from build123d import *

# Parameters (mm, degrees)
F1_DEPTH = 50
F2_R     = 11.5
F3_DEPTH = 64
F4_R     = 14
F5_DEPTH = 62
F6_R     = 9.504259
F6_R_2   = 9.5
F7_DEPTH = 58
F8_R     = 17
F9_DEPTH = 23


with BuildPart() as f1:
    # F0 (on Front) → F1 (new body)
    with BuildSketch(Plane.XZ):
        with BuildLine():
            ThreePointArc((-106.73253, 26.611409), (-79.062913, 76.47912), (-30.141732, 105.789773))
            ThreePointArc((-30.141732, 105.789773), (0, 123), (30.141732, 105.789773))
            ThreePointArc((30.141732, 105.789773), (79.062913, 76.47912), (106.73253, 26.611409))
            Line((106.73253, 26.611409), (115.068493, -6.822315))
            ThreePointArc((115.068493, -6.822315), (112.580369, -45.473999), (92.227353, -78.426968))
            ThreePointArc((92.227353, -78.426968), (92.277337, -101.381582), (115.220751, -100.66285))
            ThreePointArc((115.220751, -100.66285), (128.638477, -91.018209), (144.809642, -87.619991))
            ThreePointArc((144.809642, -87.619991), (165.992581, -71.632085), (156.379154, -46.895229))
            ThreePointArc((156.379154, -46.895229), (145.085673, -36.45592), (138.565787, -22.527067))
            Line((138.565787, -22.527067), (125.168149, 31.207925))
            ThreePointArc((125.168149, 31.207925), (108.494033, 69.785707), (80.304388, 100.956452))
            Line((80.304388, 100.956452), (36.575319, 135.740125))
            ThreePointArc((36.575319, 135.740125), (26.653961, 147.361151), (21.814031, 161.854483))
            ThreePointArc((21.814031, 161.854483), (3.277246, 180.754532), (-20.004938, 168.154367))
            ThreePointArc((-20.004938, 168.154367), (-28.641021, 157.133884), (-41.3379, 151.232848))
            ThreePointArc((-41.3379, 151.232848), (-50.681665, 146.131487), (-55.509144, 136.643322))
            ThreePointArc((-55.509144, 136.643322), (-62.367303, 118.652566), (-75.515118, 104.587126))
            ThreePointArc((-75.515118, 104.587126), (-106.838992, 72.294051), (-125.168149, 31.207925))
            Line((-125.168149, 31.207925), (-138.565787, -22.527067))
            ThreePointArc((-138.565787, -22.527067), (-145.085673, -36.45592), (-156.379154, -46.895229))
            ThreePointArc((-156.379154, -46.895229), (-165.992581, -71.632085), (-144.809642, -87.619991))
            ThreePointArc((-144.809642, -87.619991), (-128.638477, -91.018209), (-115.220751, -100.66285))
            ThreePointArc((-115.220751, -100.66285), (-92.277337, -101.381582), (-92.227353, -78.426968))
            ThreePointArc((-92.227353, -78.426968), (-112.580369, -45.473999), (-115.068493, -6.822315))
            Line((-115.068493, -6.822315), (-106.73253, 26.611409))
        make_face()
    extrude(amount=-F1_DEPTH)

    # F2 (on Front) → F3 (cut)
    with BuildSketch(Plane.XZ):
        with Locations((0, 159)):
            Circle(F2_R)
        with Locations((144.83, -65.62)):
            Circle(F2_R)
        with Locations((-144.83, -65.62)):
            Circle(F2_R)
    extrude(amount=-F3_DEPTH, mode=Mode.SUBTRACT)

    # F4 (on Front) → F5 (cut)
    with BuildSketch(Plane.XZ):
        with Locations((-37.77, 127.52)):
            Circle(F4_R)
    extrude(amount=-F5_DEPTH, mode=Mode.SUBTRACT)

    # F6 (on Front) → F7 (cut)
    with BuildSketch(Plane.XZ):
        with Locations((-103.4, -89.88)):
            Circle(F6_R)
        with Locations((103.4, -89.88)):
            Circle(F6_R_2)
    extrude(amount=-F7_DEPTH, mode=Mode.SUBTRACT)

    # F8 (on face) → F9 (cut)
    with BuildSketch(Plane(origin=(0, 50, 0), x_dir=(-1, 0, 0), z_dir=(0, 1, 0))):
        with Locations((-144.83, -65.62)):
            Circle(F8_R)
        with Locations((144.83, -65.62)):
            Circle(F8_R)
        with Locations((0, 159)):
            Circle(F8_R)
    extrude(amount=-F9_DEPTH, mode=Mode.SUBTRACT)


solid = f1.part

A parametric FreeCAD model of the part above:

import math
import FreeCAD as App
import Part
import Sketcher

V = App.Vector
Q = App.Units.Quantity

doc = App.newDocument("Part")
params = doc.addObject("Spreadsheet::Sheet", "Params")
for row, (alias, value) in enumerate([
    ("sketch1_radius", "110.000002 mm"),
    ("sketch1_radius2", "35.000001 mm"),
    ("sketch1_radius3", "16 mm"),
    ("sketch1_radius4", "22 mm"),
    ("sketch1_radius5", "30.000001 mm"),
    ("pad1_length", "50 mm"),
    ("sketch2_diameter", "23 mm"),
    ("pocket1_length", "64 mm"),
    ("sketch3_diameter", "28 mm"),
    ("pocket2_length", "62 mm"),
    ("sketch4_diameter", "19 mm"),
    ("pocket3_length", "58 mm"),
    ("sketch5_diameter", "34 mm"),
    ("pocket4_length", "23 mm"),
], start=1):
    params.set(f"A{row}", alias)
    params.set(f"B{row}", "=" + value)
    params.setAlias(f"B{row}", alias)

body = doc.addObject("PartDesign::Body", "Body")

sketch1 = body.newObject("Sketcher::SketchObject", "Sketch")
sketch1.AttachmentSupport = (doc.getObject("XZ_Plane"), [""])
sketch1.MapMode = "FlatFace"
sketch1.addGeometry(Part.ArcOfCircle(Part.Circle(V(0, 0, 0), V(0, 0, 1), 110), math.radians(106), math.radians(166)), False)
sketch1.addGeometry(Part.ArcOfCircle(Part.Circle(V(0, 88, 0), V(0, 0, 1), 35), math.radians(31), math.radians(149)), False)
sketch1.addGeometry(Part.ArcOfCircle(Part.Circle(V(0, 0, 0), V(0, 0, 1), 110), math.radians(14), math.radians(74)), False)
sketch1.addGeometry(Part.LineSegment(V(107, 27, 0), V(115, -7, 0)), False)
sketch1.addGeometry(Part.ArcOfCircle(Part.Circle(V(36, -21, 0), V(0, 0, 1), 80), math.radians(-46), math.radians(10)), False)
sketch1.addGeometry(Part.ArcOfCircle(Part.Circle(V(103, -90, 0), V(0, 0, 1), 16), math.radians(134), math.radians(318)), False)
sketch1.addGeometry(Part.ArcOfCircle(Part.Circle(V(145, -128, 0), V(0, 0, 1), 40), math.radians(90), math.radians(138)), False)
sketch1.addGeometry(Part.ArcOfCircle(Part.Circle(V(145, -66, 0), V(0, 0, 1), 22), math.radians(-90), math.radians(58)), False)
sketch1.addGeometry(Part.ArcOfCircle(Part.Circle(V(177, -13, 0), V(0, 0, 1), 40), math.radians(-166), math.radians(-122)), False)
sketch1.addGeometry(Part.LineSegment(V(139, -23, 0), V(125, 31, 0)), False)
sketch1.addGeometry(Part.ArcOfCircle(Part.Circle(V(0, 0, 0), V(0, 0, 1), 129), math.radians(14), math.radians(52)), False)
sketch1.addGeometry(Part.LineSegment(V(80, 101, 0), V(37, 136, 0)), False)
sketch1.addGeometry(Part.ArcOfCircle(Part.Circle(V(61, 167, 0), V(0, 0, 1), 40), math.radians(-173), math.radians(-128)), False)
sketch1.addGeometry(Part.ArcOfCircle(Part.Circle(V(0, 159, 0), V(0, 0, 1), 22), math.radians(7), math.radians(155)), False)
sketch1.addGeometry(Part.ArcOfCircle(Part.Circle(V(-47, 181, 0), V(0, 0, 1), 30), math.radians(-79), math.radians(-25)), False)
sketch1.addGeometry(Part.ArcOfCircle(Part.Circle(V(-38, 134, 0), V(0, 0, 1), 18), math.radians(101), math.radians(170)), False)
sketch1.addGeometry(Part.ArcOfCircle(Part.Circle(V(-105, 145, 0), V(0, 0, 1), 50), math.radians(-54), math.radians(-10)), False)
sketch1.addGeometry(Part.ArcOfCircle(Part.Circle(V(0, 0, 0), V(0, 0, 1), 129), math.radians(126), math.radians(166)), False)
sketch1.addGeometry(Part.LineSegment(V(-125, 31, 0), V(-139, -23, 0)), False)
sketch1.addGeometry(Part.ArcOfCircle(Part.Circle(V(-177, -13, 0), V(0, 0, 1), 40), math.radians(-58), math.radians(-14)), False)
sketch1.addGeometry(Part.ArcOfCircle(Part.Circle(V(-145, -66, 0), V(0, 0, 1), 22), math.radians(122), math.radians(270)), False)
sketch1.addGeometry(Part.ArcOfCircle(Part.Circle(V(-145, -128, 0), V(0, 0, 1), 40), math.radians(42), math.radians(90)), False)
sketch1.addGeometry(Part.ArcOfCircle(Part.Circle(V(-103, -90, 0), V(0, 0, 1), 16), math.radians(-138), math.radians(46)), False)
sketch1.addGeometry(Part.ArcOfCircle(Part.Circle(V(-36, -21, 0), V(0, 0, 1), 80), math.radians(170), math.radians(226)), False)
sketch1.addGeometry(Part.LineSegment(V(-115, -7, 0), V(-107, 27, 0)), False)
sketch1.addConstraint(Sketcher.Constraint("Coincident", 0, 1, 1, 2))
sketch1.addConstraint(Sketcher.Constraint("Coincident", 1, 1, 2, 2))
sketch1.addConstraint(Sketcher.Constraint("Tangent", 2, 1, 3, 1))
sketch1.addConstraint(Sketcher.Constraint("Coincident", 3, 2, 4, 2))
sketch1.addConstraint(Sketcher.Constraint("Tangent", 4, 1, 5, 1))
sketch1.addConstraint(Sketcher.Constraint("Tangent", 5, 2, 6, 2))
sketch1.addConstraint(Sketcher.Constraint("Tangent", 6, 1, 7, 1))
sketch1.addConstraint(Sketcher.Constraint("Tangent", 7, 2, 8, 2))
sketch1.addConstraint(Sketcher.Constraint("Tangent", 8, 1, 9, 1))
sketch1.addConstraint(Sketcher.Constraint("Tangent", 9, 2, 10, 1))
sketch1.addConstraint(Sketcher.Constraint("Tangent", 10, 2, 11, 1))
sketch1.addConstraint(Sketcher.Constraint("Tangent", 11, 2, 12, 2))
sketch1.addConstraint(Sketcher.Constraint("Tangent", 12, 1, 13, 1))
sketch1.addConstraint(Sketcher.Constraint("Tangent", 13, 2, 14, 2))
sketch1.addConstraint(Sketcher.Constraint("Tangent", 14, 1, 15, 1))
sketch1.addConstraint(Sketcher.Constraint("Tangent", 15, 2, 16, 2))
sketch1.addConstraint(Sketcher.Constraint("Tangent", 16, 1, 17, 1))
sketch1.addConstraint(Sketcher.Constraint("Tangent", 17, 2, 18, 1))
sketch1.addConstraint(Sketcher.Constraint("Tangent", 18, 2, 19, 2))
sketch1.addConstraint(Sketcher.Constraint("Tangent", 19, 1, 20, 1))
sketch1.addConstraint(Sketcher.Constraint("Tangent", 20, 2, 21, 2))
sketch1.addConstraint(Sketcher.Constraint("Tangent", 21, 1, 22, 1))
sketch1.addConstraint(Sketcher.Constraint("Tangent", 22, 2, 23, 2))
sketch1.addConstraint(Sketcher.Constraint("Coincident", 23, 1, 24, 1))
sketch1.addConstraint(Sketcher.Constraint("Tangent", 24, 2, 0, 2))
sketch1.addConstraint(Sketcher.Constraint("Coincident", 0, 3, -1, 1))
sketch1.addConstraint(Sketcher.Constraint("Coincident", 2, 3, -1, 1))
sketch1.addConstraint(Sketcher.Constraint("Coincident", 10, 3, -1, 1))
sketch1.addConstraint(Sketcher.Constraint("Coincident", 17, 3, -1, 1))
sketch1.addConstraint(Sketcher.Constraint("Equal", 0, 2))
sketch1.addConstraint(Sketcher.Constraint("Equal", 7, 13))
sketch1.addConstraint(Sketcher.Constraint("Equal", 8, 19))
sketch1.addConstraint(Sketcher.Constraint("Equal", 13, 20))
sketch1.addConstraint(Sketcher.Constraint("Equal", 6, 21))
sketch1.addConstraint(Sketcher.Constraint("Equal", 5, 22))
sketch1.addConstraint(Sketcher.Constraint("Equal", 4, 23))
sketch1.addConstraint(Sketcher.Constraint("Symmetric", 8, 3, 19, 3, -2))
sketch1.addConstraint(Sketcher.Constraint("Symmetric", 6, 3, 21, 3, -2))
sketch1.addConstraint(Sketcher.Constraint("Symmetric", 4, 3, 23, 3, -2))
sketch1.addConstraint(Sketcher.Constraint("PointOnObject", 1, 3, -2))
sketch1.addConstraint(Sketcher.Constraint("PointOnObject", 13, 3, -2))
sketch1.addConstraint(Sketcher.Constraint("Parallel", 3, 9))
sketch1.addConstraint(Sketcher.Constraint("Parallel", 18, 24))
sketch1.addConstraint(Sketcher.Constraint("Horizontal", 9, 2, 17, 2))
sketch1.addConstraint(Sketcher.Constraint("Radius", 0, Q("110.000002 mm")))
sketch1.addConstraint(Sketcher.Constraint("Radius", 1, Q("35.000001 mm")))
sketch1.addConstraint(Sketcher.Constraint("Radius", 5, Q("16 mm")))
sketch1.addConstraint(Sketcher.Constraint("Radius", 7, Q("22 mm")))
sketch1.addConstraint(Sketcher.Constraint("Radius", 14, Q("30.000001 mm")))
sketch1.addConstraint(Sketcher.Constraint("Radius", 15, Q("18.000001 mm")))
sketch1.addConstraint(Sketcher.Constraint("Radius", 17, Q("129.000001 mm")))
sketch1.addConstraint(Sketcher.Constraint("Angle", 3, Q("-76.000001 deg")))
sketch1.addConstraint(Sketcher.Constraint("DistanceY", -1, 1, 1, 3, Q("87.999999 mm")))
sketch1.addConstraint(Sketcher.Constraint("DistanceY", -1, 1, 13, 3, Q("159 mm")))
sketch1.addConstraint(Sketcher.Constraint("Angle", 11, Q("141.499999 deg")))
sketch1.addConstraint(Sketcher.Constraint("DistanceX", -1, 1, 5, 3, Q("103.4 mm")))
sketch1.addConstraint(Sketcher.Constraint("DistanceY", 5, 3, -1, 1, Q("89.880001 mm")))
sketch1.addConstraint(Sketcher.Constraint("DistanceX", -1, 1, 7, 3, Q("144.83 mm")))
sketch1.addConstraint(Sketcher.Constraint("DistanceY", 7, 3, -1, 1, Q("65.62 mm")))
sketch1.addConstraint(Sketcher.Constraint("DistanceX", 15, 3, -1, 1, Q("37.769999 mm")))
sketch1.addConstraint(Sketcher.Constraint("DistanceY", -1, 1, 15, 3, Q("133.589999 mm")))
sketch1.addConstraint(Sketcher.Constraint("Radius", 12, Q("39.999989 mm")))
sketch1.addConstraint(Sketcher.Constraint("Radius", 4, Q("80.000002 mm")))
sketch1.addConstraint(Sketcher.Constraint("Radius", 6, Q("39.999994 mm")))
sketch1.addConstraint(Sketcher.Constraint("Radius", 8, Q("39.999998 mm")))
sketch1.addConstraint(Sketcher.Constraint("Radius", 16, Q("50.000002 mm")))
sketch1.addConstraint(Sketcher.Constraint("DistanceX", 4, 3, 8, 3, Q("141.0135 mm")))
sketch1.setExpression("Constraints[44]", "Params.sketch1_radius")
sketch1.setExpression("Constraints[45]", "Params.sketch1_radius2")
sketch1.setExpression("Constraints[46]", "Params.sketch1_radius3")
sketch1.setExpression("Constraints[47]", "Params.sketch1_radius4")
sketch1.setExpression("Constraints[48]", "Params.sketch1_radius5")
pad1 = body.newObject("PartDesign::Pad", "Pad")
pad1.Profile = sketch1
pad1.setExpression("Length", "Params.pad1_length")
pad1.Reversed = True

sketch2 = body.newObject("Sketcher::SketchObject", "Sketch001")
sketch2.AttachmentSupport = (doc.getObject("XZ_Plane"), [""])
sketch2.MapMode = "FlatFace"
sketch2.addGeometry(Part.Circle(V(0, 159, 0), V(0, 0, 1), 12), False)
sketch2.addGeometry(Part.Circle(V(145, -66, 0), V(0, 0, 1), 12), False)
sketch2.addGeometry(Part.Circle(V(-145, -66, 0), V(0, 0, 1), 12), False)
sketch2.addConstraint(Sketcher.Constraint("Equal", 0, 1))
sketch2.addConstraint(Sketcher.Constraint("Equal", 1, 2))
sketch2.addConstraint(Sketcher.Constraint("Symmetric", 1, 3, 2, 3, -2))
sketch2.addConstraint(Sketcher.Constraint("PointOnObject", 0, 3, -2))
sketch2.addConstraint(Sketcher.Constraint("Diameter", 0, Q("23 mm")))
sketch2.addConstraint(Sketcher.Constraint("DistanceY", -1, 1, 0, 3, Q("159 mm")))
sketch2.addConstraint(Sketcher.Constraint("DistanceX", -1, 1, 1, 3, Q("144.83 mm")))
sketch2.addConstraint(Sketcher.Constraint("DistanceY", 1, 3, -1, 1, Q("65.62 mm")))
sketch2.setExpression("Constraints[4]", "Params.sketch2_diameter")
pocket1 = body.newObject("PartDesign::Pocket", "Pocket")
pocket1.Profile = sketch2
pocket1.setExpression("Length", "Params.pocket1_length")

sketch3 = body.newObject("Sketcher::SketchObject", "Sketch002")
sketch3.AttachmentSupport = (doc.getObject("XZ_Plane"), [""])
sketch3.MapMode = "FlatFace"
sketch3.addGeometry(Part.Circle(V(-38, 128, 0), V(0, 0, 1), 14), False)
sketch3.addConstraint(Sketcher.Constraint("Diameter", 0, Q("28 mm")))
sketch3.addConstraint(Sketcher.Constraint("DistanceX", 0, 3, -1, 1, Q("37.77 mm")))
sketch3.addConstraint(Sketcher.Constraint("DistanceY", -1, 1, 0, 3, Q("127.52 mm")))
sketch3.setExpression("Constraints[0]", "Params.sketch3_diameter")
pocket2 = body.newObject("PartDesign::Pocket", "Pocket001")
pocket2.Profile = sketch3
pocket2.setExpression("Length", "Params.pocket2_length")

sketch4 = body.newObject("Sketcher::SketchObject", "Sketch003")
sketch4.AttachmentSupport = (doc.getObject("XZ_Plane"), [""])
sketch4.MapMode = "FlatFace"
sketch4.addGeometry(Part.Circle(V(-103, -90, 0), V(0, 0, 1), 10), False)
sketch4.addGeometry(Part.Circle(V(103, -90, 0), V(0, 0, 1), 10), False)
sketch4.addConstraint(Sketcher.Constraint("Symmetric", 0, 3, 1, 3, -2))
sketch4.addConstraint(Sketcher.Constraint("Diameter", 1, Q("19 mm")))
sketch4.addConstraint(Sketcher.Constraint("DistanceX", 0, 3, -1, 1, Q("103.4 mm")))
sketch4.addConstraint(Sketcher.Constraint("DistanceY", 0, 3, -1, 1, Q("89.88 mm")))
sketch4.addConstraint(Sketcher.Constraint("Diameter", 0, Q("19.008518 mm")))
sketch4.setExpression("Constraints[1]", "Params.sketch4_diameter")
pocket3 = body.newObject("PartDesign::Pocket", "Pocket002")
pocket3.Profile = sketch4
pocket3.setExpression("Length", "Params.pocket3_length")

sketch5 = body.newObject("Sketcher::SketchObject", "Sketch004")
sketch5.AttachmentSupport = (doc.getObject("XZ_Plane"), [""])
sketch5.MapMode = "FlatFace"
sketch5.AttachmentOffset = App.Placement(V(0, 0, -50), App.Rotation())
sketch5.addGeometry(Part.Circle(V(145, -66, 0), V(0, 0, 1), 17), False)
sketch5.addGeometry(Part.Circle(V(-145, -66, 0), V(0, 0, 1), 17), False)
sketch5.addGeometry(Part.Circle(V(0, 159, 0), V(0, 0, 1), 17), False)
sketch5.addConstraint(Sketcher.Constraint("Equal", 0, 1))
sketch5.addConstraint(Sketcher.Constraint("Equal", 1, 2))
sketch5.addConstraint(Sketcher.Constraint("Symmetric", 0, 3, 1, 3, -2))
sketch5.addConstraint(Sketcher.Constraint("PointOnObject", 2, 3, -2))
sketch5.addConstraint(Sketcher.Constraint("Diameter", 0, Q("34 mm")))
sketch5.addConstraint(Sketcher.Constraint("DistanceY", -1, 1, 2, 3, Q("159 mm")))
sketch5.addConstraint(Sketcher.Constraint("DistanceX", -1, 1, 0, 3, Q("144.83 mm")))
sketch5.addConstraint(Sketcher.Constraint("DistanceY", 0, 3, -1, 1, Q("65.62 mm")))
sketch5.setExpression("Constraints[4]", "Params.sketch5_diameter")
pocket4 = body.newObject("PartDesign::Pocket", "Pocket003")
pocket4.Profile = sketch5
pocket4.setExpression("Length", "Params.pocket4_length")
pocket4.Reversed = True

doc.recompute()
